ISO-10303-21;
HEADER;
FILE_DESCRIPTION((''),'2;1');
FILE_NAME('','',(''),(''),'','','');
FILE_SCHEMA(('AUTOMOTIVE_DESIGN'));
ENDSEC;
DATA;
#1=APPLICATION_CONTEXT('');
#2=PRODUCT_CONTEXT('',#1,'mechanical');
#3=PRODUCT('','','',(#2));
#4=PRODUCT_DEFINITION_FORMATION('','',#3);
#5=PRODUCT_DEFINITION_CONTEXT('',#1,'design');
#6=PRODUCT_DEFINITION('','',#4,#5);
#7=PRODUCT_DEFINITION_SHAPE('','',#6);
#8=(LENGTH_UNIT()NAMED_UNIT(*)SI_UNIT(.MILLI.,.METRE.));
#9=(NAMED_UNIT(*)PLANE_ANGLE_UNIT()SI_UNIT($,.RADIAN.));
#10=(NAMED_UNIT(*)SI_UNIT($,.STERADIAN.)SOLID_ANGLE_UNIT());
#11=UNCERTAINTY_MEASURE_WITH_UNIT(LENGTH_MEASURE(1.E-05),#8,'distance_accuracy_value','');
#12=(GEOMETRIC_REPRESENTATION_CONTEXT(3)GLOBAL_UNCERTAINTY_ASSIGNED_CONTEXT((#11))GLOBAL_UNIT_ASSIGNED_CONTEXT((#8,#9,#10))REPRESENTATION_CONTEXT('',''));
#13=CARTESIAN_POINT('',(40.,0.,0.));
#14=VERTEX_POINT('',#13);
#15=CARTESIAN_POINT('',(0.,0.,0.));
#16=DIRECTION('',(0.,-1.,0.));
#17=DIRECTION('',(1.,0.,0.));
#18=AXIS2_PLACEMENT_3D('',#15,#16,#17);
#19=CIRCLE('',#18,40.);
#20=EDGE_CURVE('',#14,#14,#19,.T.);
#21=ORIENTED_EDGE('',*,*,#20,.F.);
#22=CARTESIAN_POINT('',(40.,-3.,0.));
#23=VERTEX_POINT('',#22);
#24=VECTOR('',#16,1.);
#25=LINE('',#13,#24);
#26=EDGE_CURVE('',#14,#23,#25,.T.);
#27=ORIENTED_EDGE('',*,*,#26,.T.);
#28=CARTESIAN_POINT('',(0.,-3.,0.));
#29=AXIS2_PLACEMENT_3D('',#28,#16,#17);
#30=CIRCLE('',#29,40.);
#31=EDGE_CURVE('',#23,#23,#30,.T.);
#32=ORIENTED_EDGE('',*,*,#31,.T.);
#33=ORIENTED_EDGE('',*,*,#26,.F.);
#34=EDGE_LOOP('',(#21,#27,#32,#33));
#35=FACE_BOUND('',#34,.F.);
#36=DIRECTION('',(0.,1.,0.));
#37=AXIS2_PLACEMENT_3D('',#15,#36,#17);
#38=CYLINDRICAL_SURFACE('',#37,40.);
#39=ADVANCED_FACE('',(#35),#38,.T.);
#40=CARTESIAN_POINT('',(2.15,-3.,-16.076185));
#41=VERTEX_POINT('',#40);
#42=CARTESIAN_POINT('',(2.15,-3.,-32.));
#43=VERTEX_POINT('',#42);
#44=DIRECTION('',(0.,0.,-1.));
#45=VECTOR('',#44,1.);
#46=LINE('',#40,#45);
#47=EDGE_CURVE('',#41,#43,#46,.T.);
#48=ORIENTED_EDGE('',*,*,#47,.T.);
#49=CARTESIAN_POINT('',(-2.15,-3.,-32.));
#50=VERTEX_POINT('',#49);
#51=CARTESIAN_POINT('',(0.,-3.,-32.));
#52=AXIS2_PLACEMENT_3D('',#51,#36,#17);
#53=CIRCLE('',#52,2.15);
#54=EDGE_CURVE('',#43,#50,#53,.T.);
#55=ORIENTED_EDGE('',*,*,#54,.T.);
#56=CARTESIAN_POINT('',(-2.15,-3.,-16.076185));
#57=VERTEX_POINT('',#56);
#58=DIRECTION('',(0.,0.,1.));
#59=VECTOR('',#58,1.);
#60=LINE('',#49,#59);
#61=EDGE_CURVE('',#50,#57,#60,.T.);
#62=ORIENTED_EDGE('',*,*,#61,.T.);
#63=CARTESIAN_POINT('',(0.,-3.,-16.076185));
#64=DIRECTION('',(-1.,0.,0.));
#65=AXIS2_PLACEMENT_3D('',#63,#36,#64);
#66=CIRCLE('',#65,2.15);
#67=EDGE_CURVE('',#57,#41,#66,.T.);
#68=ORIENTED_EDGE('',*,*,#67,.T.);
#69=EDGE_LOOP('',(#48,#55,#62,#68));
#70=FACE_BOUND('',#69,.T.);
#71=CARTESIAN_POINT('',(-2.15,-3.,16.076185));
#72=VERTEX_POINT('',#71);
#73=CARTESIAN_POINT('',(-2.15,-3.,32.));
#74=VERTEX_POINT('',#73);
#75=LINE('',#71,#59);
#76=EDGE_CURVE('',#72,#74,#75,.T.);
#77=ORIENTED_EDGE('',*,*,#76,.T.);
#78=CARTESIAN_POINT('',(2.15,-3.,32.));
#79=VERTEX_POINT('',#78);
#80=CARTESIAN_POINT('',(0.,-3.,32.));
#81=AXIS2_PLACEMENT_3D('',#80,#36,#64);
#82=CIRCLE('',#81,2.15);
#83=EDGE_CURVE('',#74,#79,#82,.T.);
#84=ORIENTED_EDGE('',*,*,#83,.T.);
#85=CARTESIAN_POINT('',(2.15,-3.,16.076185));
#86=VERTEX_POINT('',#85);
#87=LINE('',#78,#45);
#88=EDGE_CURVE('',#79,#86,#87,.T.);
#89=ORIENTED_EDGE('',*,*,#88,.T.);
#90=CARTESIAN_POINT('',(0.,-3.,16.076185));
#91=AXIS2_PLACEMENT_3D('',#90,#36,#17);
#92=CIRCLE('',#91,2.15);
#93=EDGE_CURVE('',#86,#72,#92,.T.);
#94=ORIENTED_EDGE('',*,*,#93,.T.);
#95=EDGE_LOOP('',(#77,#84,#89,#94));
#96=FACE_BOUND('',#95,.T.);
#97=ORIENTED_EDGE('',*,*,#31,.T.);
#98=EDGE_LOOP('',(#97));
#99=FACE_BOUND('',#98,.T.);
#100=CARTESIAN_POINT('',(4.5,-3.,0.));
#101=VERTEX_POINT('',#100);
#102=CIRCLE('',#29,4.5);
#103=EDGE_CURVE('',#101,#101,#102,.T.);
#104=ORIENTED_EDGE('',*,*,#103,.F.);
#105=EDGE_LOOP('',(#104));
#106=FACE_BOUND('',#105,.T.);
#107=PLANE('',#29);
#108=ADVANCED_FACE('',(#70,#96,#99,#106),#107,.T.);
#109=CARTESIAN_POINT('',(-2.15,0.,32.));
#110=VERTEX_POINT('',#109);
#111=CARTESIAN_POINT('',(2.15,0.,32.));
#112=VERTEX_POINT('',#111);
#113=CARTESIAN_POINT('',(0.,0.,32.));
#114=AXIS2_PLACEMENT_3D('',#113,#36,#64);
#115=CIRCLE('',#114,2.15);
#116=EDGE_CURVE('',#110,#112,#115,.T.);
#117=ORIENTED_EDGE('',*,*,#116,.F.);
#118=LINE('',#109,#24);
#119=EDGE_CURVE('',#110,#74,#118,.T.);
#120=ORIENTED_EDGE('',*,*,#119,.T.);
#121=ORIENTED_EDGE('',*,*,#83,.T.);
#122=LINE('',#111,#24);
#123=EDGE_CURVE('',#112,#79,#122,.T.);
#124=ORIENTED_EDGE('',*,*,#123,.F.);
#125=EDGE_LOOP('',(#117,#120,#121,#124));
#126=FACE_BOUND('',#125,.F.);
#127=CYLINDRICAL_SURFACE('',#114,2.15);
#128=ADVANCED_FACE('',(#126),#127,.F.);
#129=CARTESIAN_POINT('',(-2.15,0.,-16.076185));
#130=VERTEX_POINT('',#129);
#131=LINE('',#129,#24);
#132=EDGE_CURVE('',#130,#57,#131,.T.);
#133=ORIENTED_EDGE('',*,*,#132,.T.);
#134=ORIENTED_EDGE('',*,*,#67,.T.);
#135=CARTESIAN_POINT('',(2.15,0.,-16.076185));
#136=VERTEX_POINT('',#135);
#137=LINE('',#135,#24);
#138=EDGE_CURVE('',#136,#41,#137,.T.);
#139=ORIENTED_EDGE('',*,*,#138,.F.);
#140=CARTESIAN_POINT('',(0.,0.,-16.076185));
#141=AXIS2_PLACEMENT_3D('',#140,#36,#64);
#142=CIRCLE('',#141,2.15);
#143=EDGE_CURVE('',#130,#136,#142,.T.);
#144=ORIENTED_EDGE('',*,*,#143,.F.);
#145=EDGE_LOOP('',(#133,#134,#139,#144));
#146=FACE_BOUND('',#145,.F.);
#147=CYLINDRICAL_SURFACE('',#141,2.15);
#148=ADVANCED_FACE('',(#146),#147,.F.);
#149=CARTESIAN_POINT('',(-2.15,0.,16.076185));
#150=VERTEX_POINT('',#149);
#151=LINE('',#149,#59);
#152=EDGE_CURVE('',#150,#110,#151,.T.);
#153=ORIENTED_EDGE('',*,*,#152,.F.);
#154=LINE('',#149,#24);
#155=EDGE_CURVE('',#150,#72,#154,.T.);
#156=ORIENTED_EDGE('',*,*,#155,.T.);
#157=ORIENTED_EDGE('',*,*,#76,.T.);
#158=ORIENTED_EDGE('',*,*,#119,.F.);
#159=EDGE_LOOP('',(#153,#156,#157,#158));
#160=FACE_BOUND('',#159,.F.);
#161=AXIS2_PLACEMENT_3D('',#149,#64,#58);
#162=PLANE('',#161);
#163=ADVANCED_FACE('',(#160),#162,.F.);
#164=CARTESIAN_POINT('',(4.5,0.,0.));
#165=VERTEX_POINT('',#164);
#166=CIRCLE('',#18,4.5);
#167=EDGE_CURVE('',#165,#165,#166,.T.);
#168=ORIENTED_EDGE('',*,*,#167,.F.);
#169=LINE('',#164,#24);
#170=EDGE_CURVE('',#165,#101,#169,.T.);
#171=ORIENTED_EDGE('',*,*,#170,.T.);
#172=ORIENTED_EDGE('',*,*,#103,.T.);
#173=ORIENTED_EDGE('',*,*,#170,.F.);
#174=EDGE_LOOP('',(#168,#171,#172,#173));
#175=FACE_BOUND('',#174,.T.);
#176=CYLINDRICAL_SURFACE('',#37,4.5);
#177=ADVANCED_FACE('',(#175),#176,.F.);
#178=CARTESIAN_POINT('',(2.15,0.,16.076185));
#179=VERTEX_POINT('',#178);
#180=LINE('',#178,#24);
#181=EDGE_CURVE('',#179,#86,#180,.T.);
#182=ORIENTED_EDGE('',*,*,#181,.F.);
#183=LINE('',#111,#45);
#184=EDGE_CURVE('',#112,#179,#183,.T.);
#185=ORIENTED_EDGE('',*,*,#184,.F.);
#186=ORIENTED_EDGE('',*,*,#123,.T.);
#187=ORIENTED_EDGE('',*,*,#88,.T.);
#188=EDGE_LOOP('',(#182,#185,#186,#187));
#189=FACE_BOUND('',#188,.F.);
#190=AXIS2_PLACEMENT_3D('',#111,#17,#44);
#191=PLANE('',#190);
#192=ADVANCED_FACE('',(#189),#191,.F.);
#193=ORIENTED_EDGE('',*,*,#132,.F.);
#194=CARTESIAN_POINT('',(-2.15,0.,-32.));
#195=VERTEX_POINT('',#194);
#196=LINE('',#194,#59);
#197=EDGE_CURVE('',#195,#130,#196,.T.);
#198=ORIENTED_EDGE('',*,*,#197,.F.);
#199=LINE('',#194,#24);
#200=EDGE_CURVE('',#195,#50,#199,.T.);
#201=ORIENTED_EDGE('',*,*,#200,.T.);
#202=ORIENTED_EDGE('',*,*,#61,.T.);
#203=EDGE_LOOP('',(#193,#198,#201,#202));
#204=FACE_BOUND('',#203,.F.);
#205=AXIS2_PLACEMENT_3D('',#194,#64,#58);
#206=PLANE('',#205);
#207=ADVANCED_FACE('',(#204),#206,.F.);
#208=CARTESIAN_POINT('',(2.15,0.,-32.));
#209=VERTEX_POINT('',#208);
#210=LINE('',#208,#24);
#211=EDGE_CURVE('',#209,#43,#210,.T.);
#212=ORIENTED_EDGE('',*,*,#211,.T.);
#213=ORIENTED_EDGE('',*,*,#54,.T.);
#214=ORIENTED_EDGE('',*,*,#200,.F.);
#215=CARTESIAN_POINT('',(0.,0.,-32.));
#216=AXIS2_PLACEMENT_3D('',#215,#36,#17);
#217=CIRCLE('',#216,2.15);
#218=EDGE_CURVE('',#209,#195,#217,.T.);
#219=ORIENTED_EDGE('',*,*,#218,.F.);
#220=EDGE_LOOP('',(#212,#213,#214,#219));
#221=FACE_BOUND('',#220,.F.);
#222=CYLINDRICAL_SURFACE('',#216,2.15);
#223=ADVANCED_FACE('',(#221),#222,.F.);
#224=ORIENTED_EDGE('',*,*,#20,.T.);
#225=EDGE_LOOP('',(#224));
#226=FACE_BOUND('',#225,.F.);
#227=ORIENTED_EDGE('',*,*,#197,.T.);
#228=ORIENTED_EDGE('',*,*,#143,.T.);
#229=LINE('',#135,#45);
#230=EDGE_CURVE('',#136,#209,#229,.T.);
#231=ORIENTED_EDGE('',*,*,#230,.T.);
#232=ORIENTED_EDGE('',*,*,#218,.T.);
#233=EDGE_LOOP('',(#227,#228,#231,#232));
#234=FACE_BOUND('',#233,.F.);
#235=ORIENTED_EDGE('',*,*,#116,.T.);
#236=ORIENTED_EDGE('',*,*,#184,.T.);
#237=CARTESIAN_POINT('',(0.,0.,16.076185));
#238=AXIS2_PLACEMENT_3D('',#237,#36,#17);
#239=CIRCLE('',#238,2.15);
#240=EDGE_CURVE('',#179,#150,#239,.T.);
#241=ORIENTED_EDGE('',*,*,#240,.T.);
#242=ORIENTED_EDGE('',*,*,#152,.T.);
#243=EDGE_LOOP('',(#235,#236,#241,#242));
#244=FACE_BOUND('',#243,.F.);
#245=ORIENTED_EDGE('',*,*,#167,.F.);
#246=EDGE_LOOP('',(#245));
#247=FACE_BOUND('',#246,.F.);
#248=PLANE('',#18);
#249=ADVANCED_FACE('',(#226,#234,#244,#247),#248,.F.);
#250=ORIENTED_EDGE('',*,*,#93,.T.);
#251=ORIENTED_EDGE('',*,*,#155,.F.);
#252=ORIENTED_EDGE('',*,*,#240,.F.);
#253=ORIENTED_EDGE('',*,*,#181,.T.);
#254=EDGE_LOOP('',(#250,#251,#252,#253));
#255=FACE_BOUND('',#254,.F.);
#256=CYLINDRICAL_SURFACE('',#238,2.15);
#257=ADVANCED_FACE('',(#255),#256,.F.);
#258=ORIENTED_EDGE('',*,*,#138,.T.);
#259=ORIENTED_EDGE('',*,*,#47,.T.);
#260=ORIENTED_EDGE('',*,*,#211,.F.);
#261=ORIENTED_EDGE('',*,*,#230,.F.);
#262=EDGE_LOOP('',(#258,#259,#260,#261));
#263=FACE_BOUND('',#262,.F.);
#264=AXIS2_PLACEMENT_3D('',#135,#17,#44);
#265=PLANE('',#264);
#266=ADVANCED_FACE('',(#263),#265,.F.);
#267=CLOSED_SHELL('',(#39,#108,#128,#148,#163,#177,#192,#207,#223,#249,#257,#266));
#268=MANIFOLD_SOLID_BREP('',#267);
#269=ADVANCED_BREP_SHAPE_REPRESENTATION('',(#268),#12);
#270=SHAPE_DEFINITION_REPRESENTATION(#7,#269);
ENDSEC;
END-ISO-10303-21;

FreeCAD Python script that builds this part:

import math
import FreeCAD as App
import Part
import Sketcher
from FreeCAD import Vector

doc = App.newDocument("Part")
body = doc.addObject("PartDesign::Body", "Body")

sketch1 = body.newObject("Sketcher::SketchObject", "Sketch")
sketch1.AttachmentSupport = (doc.getObject("XZ_Plane"), [""])
sketch1.MapMode = "FlatFace"
sketch1.addGeometry([
    Part.Circle(Vector(0, 0, 0), Vector(0, 0, 1), 40),
    Part.LineSegment(Vector(2.1, -16.1, 0), Vector(2.1, -32, 0)),
    Part.ArcOfCircle(Part.Circle(Vector(0, -32, 0), Vector(0, 0, 1), 2.1), math.radians(180), math.radians(360)),
    Part.LineSegment(Vector(-2.1, -32, 0), Vector(-2.1, -16.1, 0)),
    Part.ArcOfCircle(Part.Circle(Vector(0, -16.1, 0), Vector(0, 0, 1), 2.1), math.radians(0), math.radians(180)),
    Part.Circle(Vector(0, 0, 0), Vector(0, 0, 1), 4.5),
    Part.ArcOfCircle(Part.Circle(Vector(0, 16.1, 0), Vector(0, 0, 1), 2.1), math.radians(180), math.radians(360)),
    Part.LineSegment(Vector(-2.1, 16.1, 0), Vector(-2.1, 32, 0)),
    Part.ArcOfCircle(Part.Circle(Vector(0, 32, 0), Vector(0, 0, 1), 2.1), math.radians(0), math.radians(180)),
    Part.LineSegment(Vector(2.1, 32, 0), Vector(2.1, 16.1, 0)),
], False)
sketch1.addConstraint([
    Sketcher.Constraint("Tangent", 1, 2, 2, 2),
    Sketcher.Constraint("Tangent", 2, 1, 3, 1),
    Sketcher.Constraint("Tangent", 3, 2, 4, 2),
    Sketcher.Constraint("Tangent", 4, 1, 1, 1),
    Sketcher.Constraint("Tangent", 6, 1, 7, 1),
    Sketcher.Constraint("Tangent", 7, 2, 8, 2),
    Sketcher.Constraint("Tangent", 8, 1, 9, 1),
    Sketcher.Constraint("Tangent", 9, 2, 6, 2),
    Sketcher.Constraint("Vertical", 1),
    Sketcher.Constraint("Vertical", 3),
    Sketcher.Constraint("Vertical", 7),
    Sketcher.Constraint("Vertical", 9),
    Sketcher.Constraint("Coincident", 0, 3, -1, 1),
    Sketcher.Constraint("Coincident", 5, 3, -1, 1),
    Sketcher.Constraint("Equal", 4, 6),
    Sketcher.Constraint("Symmetric", 4, 3, 6, 3, -1, 1),
    Sketcher.Constraint("Symmetric", 2, 3, 8, 3, -1),
    Sketcher.Constraint("Diameter", 0, 80.0),
    Sketcher.Constraint("Diameter", 5, 9.0),
    Sketcher.Constraint("Radius", 2, 2.15),
    Sketcher.Constraint("DistanceY", 2, 3, -1, 1, 32.0),
    Sketcher.Constraint("DistanceY", 1, 2, 1, 1, 15.923815),
])
pad1 = body.newObject("PartDesign::Pad", "Pad")
pad1.Profile = sketch1
pad1.Length = 3

doc.recompute()
